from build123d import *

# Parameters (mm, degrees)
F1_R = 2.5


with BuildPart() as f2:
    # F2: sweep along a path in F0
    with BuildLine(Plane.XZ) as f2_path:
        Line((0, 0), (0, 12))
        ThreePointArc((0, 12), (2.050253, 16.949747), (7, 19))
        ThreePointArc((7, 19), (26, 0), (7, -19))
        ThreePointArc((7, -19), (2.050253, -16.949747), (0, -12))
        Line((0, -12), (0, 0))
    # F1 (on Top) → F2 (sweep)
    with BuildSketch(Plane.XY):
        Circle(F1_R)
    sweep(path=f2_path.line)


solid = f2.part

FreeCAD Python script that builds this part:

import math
import FreeCAD as App
import Part
import Sketcher
from FreeCAD import Vector

doc = App.newDocument("Part")
params = doc.addObject("Spreadsheet::Sheet", "Params")
for row, (alias, value) in enumerate([
    ("sketch1_diameter", "5 mm"),
    ("sketch2_radius", "7.000002 mm"),
    ("sketch2_radius2", "19 mm"),
], start=1):
    params.set(f"A{row}", alias)
    params.set(f"B{row}", "=" + value)
    params.setAlias(f"B{row}", alias)

body = doc.addObject("PartDesign::Body", "Body")

# Sketch on XY plane
sketch1 = body.newObject("Sketcher::SketchObject", "Sketch")
sketch1.AttachmentSupport = (doc.getObject("XY_Plane"), [""])
sketch1.MapMode = "FlatFace"
sketch1.addGeometry(Part.Circle(Vector(0, 0, 0), Vector(0, 0, 1), 2.5), False)
sketch1.addConstraint(Sketcher.Constraint("Coincident", 0, 3, -1, 1))
sketch1.addConstraint(Sketcher.Constraint("Diameter", 0, 5.0))
sketch1.setExpression("Constraints[1]", "Params.sketch1_diameter")

# Sketch on XZ plane
sketch2 = body.newObject("Sketcher::SketchObject", "Sketch001")
sketch2.AttachmentSupport = (doc.getObject("XZ_Plane"), [""])
sketch2.MapMode = "FlatFace"
sketch2.addGeometry(Part.ArcOfCircle(Part.Circle(Vector(7.000002, 11.999998, 0), Vector(0, 0, 1), 7.000002), math.radians(90.000013), math.radians(179.999987)), False)
sketch2.addGeometry(Part.ArcOfCircle(Part.Circle(Vector(7, 0, 0), Vector(0, 0, 1), 19), math.radians(-90), math.radians(90)), False)
sketch2.addGeometry(Part.ArcOfCircle(Part.Circle(Vector(7.000002, -11.999998, 0), Vector(0, 0, 1), 7.000002), math.radians(-179.999987), math.radians(-90.000013)), False)
sketch2.addGeometry(Part.LineSegment(Vector(0, -12, 0), Vector(0, 12, 0)), False)
sketch2.addConstraint(Sketcher.Constraint("Tangent", 0, 1, 1, 2))
sketch2.addConstraint(Sketcher.Constraint("Tangent", 1, 1, 2, 2))
sketch2.addConstraint(Sketcher.Constraint("Tangent", 2, 1, 3, 1))
sketch2.addConstraint(Sketcher.Constraint("Tangent", 3, 2, 0, 2))
sketch2.addConstraint(Sketcher.Constraint("Vertical", 3))
sketch2.addConstraint(Sketcher.Constraint("Equal", 0, 2))
sketch2.addConstraint(Sketcher.Constraint("Symmetric", 2, 1, 3, 2, -1, 1))
sketch2.addConstraint(Sketcher.Constraint("Vertical", 0, 3, 1, 3))
sketch2.addConstraint(Sketcher.Constraint("Radius", 0, 7.000002))
sketch2.addConstraint(Sketcher.Constraint("Radius", 1, 19.0))
sketch2.setExpression("Constraints[8]", "Params.sketch2_radius")
sketch2.setExpression("Constraints[9]", "Params.sketch2_radius2")
doc.recompute()

additivepipe = body.newObject("PartDesign::AdditivePipe", "AdditivePipe")
additivepipe.Profile = sketch1
additivepipe.Spine = (sketch2, ["Edge1", "Edge2", "Edge3", "Edge4"])

doc.recompute()
